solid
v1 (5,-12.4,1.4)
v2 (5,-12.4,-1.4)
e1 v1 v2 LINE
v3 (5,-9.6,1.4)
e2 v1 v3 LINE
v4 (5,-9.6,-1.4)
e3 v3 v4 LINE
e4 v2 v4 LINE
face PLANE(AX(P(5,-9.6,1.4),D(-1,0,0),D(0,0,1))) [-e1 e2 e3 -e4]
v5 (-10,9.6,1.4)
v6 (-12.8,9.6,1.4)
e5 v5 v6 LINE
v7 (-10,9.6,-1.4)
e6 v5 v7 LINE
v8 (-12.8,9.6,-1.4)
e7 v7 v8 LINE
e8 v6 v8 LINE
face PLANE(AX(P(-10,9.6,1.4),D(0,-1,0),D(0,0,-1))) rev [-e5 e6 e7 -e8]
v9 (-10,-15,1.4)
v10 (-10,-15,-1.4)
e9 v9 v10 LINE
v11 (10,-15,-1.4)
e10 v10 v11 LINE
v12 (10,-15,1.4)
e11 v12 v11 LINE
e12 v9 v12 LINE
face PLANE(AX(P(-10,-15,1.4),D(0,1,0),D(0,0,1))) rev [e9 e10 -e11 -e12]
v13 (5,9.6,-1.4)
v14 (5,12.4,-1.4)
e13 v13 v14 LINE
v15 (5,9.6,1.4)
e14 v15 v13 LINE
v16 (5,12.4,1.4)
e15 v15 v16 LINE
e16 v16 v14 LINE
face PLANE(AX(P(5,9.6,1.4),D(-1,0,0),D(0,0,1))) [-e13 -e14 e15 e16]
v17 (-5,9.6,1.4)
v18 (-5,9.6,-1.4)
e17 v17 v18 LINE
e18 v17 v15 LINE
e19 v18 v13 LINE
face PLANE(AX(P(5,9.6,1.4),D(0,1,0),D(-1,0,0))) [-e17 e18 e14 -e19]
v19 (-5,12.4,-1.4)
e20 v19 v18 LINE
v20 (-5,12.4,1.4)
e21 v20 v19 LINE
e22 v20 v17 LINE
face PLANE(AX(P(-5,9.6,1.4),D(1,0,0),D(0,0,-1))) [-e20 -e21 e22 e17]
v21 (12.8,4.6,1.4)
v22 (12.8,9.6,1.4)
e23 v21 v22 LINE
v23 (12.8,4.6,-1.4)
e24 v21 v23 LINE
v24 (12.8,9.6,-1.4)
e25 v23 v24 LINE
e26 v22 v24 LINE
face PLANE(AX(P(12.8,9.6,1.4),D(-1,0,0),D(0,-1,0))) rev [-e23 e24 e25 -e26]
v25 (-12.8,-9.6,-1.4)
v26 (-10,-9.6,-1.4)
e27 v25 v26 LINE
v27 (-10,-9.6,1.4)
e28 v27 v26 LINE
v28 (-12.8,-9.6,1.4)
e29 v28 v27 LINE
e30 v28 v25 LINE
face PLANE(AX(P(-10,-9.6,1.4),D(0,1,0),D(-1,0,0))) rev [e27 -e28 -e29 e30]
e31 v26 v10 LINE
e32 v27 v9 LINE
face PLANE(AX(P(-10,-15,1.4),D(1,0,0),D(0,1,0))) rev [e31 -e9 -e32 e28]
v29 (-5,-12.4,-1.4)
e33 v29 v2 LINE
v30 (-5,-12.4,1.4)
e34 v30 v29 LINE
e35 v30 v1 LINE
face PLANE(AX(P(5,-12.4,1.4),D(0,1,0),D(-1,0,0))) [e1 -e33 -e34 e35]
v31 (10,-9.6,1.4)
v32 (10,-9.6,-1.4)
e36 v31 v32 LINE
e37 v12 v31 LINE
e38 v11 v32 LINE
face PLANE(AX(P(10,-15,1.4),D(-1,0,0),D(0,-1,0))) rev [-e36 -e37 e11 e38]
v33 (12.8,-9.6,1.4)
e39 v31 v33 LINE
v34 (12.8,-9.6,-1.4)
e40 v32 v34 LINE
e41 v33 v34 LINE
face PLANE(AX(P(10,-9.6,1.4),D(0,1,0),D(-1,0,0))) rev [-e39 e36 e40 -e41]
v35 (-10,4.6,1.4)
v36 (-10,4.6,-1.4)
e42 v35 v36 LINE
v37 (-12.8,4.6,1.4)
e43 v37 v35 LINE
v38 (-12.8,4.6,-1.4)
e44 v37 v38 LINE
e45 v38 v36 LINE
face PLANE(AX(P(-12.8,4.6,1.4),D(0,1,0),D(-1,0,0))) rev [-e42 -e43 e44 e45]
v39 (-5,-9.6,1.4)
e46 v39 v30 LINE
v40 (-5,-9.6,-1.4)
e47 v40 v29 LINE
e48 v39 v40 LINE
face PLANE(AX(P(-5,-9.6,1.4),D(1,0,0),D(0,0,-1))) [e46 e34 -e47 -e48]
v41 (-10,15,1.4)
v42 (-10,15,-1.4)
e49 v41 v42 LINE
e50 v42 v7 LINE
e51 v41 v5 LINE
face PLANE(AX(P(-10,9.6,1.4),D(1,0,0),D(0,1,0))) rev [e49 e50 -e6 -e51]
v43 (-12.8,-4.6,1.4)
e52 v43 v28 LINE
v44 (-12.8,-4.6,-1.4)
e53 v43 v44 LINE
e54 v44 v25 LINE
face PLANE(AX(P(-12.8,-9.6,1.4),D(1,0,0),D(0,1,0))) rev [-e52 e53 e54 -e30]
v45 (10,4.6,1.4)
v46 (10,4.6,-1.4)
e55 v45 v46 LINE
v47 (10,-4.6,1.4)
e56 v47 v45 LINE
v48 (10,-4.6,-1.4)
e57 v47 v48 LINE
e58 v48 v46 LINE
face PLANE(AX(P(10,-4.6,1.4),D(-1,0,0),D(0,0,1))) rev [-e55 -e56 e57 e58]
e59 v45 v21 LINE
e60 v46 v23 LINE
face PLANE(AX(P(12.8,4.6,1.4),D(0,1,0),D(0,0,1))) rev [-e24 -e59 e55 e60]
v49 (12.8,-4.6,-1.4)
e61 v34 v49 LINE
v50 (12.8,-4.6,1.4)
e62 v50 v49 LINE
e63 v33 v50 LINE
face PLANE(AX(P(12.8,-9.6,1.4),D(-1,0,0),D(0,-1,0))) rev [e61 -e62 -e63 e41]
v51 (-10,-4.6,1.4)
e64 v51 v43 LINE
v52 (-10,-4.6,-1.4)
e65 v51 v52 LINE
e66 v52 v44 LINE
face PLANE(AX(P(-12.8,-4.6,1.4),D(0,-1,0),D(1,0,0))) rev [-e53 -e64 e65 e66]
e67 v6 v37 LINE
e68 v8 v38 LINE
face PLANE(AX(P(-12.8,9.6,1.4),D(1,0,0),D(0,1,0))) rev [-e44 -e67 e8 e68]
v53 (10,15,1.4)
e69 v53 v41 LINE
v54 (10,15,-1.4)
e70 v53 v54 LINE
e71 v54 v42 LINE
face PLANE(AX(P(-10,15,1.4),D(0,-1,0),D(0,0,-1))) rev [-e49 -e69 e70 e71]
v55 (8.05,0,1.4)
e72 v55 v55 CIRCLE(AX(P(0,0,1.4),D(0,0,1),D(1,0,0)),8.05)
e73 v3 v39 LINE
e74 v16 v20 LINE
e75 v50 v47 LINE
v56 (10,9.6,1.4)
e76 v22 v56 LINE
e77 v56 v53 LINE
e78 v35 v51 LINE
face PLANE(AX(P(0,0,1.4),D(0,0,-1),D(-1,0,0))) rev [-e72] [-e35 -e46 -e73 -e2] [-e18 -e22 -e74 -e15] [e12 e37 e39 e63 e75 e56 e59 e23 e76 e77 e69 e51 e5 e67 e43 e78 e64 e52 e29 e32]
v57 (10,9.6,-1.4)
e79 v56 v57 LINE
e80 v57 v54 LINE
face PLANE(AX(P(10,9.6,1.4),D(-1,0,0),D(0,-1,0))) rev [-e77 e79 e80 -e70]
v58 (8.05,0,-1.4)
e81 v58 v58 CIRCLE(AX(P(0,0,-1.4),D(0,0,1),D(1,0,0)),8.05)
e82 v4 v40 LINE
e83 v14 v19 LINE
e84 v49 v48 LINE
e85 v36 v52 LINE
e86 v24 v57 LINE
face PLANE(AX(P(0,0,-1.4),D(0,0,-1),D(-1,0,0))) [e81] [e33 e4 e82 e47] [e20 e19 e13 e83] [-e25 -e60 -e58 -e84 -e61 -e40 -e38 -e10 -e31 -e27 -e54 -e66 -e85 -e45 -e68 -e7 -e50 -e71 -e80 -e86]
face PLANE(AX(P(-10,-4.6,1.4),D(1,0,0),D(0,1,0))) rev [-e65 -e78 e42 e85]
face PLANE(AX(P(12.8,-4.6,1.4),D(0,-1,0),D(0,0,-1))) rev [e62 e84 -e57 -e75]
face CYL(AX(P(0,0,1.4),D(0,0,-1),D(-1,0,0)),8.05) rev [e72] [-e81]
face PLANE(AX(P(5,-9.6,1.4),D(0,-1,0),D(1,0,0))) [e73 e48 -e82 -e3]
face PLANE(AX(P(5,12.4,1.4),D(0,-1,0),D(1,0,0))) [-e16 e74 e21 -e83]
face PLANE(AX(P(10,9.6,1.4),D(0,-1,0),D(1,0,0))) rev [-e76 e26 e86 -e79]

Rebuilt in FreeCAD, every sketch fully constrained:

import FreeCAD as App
import Part
import Sketcher

doc = App.newDocument("Part")
body = doc.addObject("PartDesign::Body", "Body")

sketch1 = body.newObject("Sketcher::SketchObject", "Sketch")
sketch1.AttachmentSupport = (doc.getObject("XY_Plane"), [""])
sketch1.MapMode = "FlatFace"
sketch1.addGeometry([
    Part.LineSegment(App.Vector(-10, 9.6, 0), App.Vector(-12.8, 9.6, 0)),
    Part.LineSegment(App.Vector(-12.8, 9.6, 0), App.Vector(-12.8, 4.6, 0)),
    Part.LineSegment(App.Vector(-12.8, 4.6, 0), App.Vector(-10, 4.6, 0)),
    Part.LineSegment(App.Vector(-10, 4.6, 0), App.Vector(-10, -4.6, 0)),
    Part.LineSegment(App.Vector(-10, -4.6, 0), App.Vector(-12.8, -4.6, 0)),
    Part.LineSegment(App.Vector(-12.8, -4.6, 0), App.Vector(-12.8, -9.6, 0)),
    Part.LineSegment(App.Vector(-12.8, -9.6, 0), App.Vector(-10, -9.6, 0)),
    Part.LineSegment(App.Vector(-10, -9.6, 0), App.Vector(-10, -15, 0)),
    Part.LineSegment(App.Vector(-10, -15, 0), App.Vector(10, -15, 0)),
    Part.LineSegment(App.Vector(10, -15, 0), App.Vector(10, -9.6, 0)),
    Part.LineSegment(App.Vector(10, -9.6, 0), App.Vector(12.8, -9.6, 0)),
    Part.LineSegment(App.Vector(12.8, -9.6, 0), App.Vector(12.8, -4.6, 0)),
    Part.LineSegment(App.Vector(12.8, -4.6, 0), App.Vector(10, -4.6, 0)),
    Part.LineSegment(App.Vector(10, -4.6, 0), App.Vector(10, 4.6, 0)),
    Part.LineSegment(App.Vector(10, 4.6, 0), App.Vector(12.8, 4.6, 0)),
    Part.LineSegment(App.Vector(12.8, 4.6, 0), App.Vector(12.8, 9.6, 0)),
    Part.LineSegment(App.Vector(12.8, 9.6, 0), App.Vector(10, 9.6, 0)),
    Part.LineSegment(App.Vector(10, 9.6, 0), App.Vector(10, 15, 0)),
    Part.LineSegment(App.Vector(10, 15, 0), App.Vector(-10, 15, 0)),
    Part.LineSegment(App.Vector(-10, 15, 0), App.Vector(-10, 9.6, 0)),
    Part.LineSegment(App.Vector(5, -12.4, 0), App.Vector(-5, -12.4, 0)),
    Part.LineSegment(App.Vector(-5, -12.4, 0), App.Vector(-5, -9.6, 0)),
    Part.LineSegment(App.Vector(-5, -9.6, 0), App.Vector(5, -9.6, 0)),
    Part.LineSegment(App.Vector(5, -9.6, 0), App.Vector(5, -12.4, 0)),
    Part.Circle(App.Vector(0, 0, 0), App.Vector(0, 0, 1), 8.1),
    Part.LineSegment(App.Vector(5, 9.6, 0), App.Vector(-5, 9.6, 0)),
    Part.LineSegment(App.Vector(-5, 9.6, 0), App.Vector(-5, 12.4, 0)),
    Part.LineSegment(App.Vector(-5, 12.4, 0), App.Vector(5, 12.4, 0)),
    Part.LineSegment(App.Vector(5, 12.4, 0), App.Vector(5, 9.6, 0)),
], False)
sketch1.addConstraint([
    Sketcher.Constraint("Coincident", 0, 2, 1, 1),
    Sketcher.Constraint("Coincident", 1, 2, 2, 1),
    Sketcher.Constraint("Coincident", 2, 2, 3, 1),
    Sketcher.Constraint("Coincident", 3, 2, 4, 1),
    Sketcher.Constraint("Coincident", 4, 2, 5, 1),
    Sketcher.Constraint("Coincident", 5, 2, 6, 1),
    Sketcher.Constraint("Coincident", 6, 2, 7, 1),
    Sketcher.Constraint("Coincident", 7, 2, 8, 1),
    Sketcher.Constraint("Coincident", 8, 2, 9, 1),
    Sketcher.Constraint("Coincident", 9, 2, 10, 1),
    Sketcher.Constraint("Coincident", 10, 2, 11, 1),
    Sketcher.Constraint("Coincident", 11, 2, 12, 1),
    Sketcher.Constraint("Coincident", 12, 2, 13, 1),
    Sketcher.Constraint("Coincident", 13, 2, 14, 1),
    Sketcher.Constraint("Coincident", 14, 2, 15, 1),
    Sketcher.Constraint("Coincident", 15, 2, 16, 1),
    Sketcher.Constraint("Coincident", 16, 2, 17, 1),
    Sketcher.Constraint("Coincident", 17, 2, 18, 1),
    Sketcher.Constraint("Coincident", 18, 2, 19, 1),
    Sketcher.Constraint("Coincident", 19, 2, 0, 1),
    Sketcher.Constraint("Coincident", 20, 2, 21, 1),
    Sketcher.Constraint("Coincident", 21, 2, 22, 1),
    Sketcher.Constraint("Coincident", 22, 2, 23, 1),
    Sketcher.Constraint("Coincident", 23, 2, 20, 1),
    Sketcher.Constraint("Coincident", 25, 2, 26, 1),
    Sketcher.Constraint("Coincident", 26, 2, 27, 1),
    Sketcher.Constraint("Coincident", 27, 2, 28, 1),
    Sketcher.Constraint("Coincident", 28, 2, 25, 1),
    Sketcher.Constraint("Horizontal", 0),
    Sketcher.Constraint("Vertical", 1),
    Sketcher.Constraint("Horizontal", 2),
    Sketcher.Constraint("Vertical", 3),
    Sketcher.Constraint("Horizontal", 4),
    Sketcher.Constraint("Vertical", 5),
    Sketcher.Constraint("Horizontal", 6),
    Sketcher.Constraint("Vertical", 7),
    Sketcher.Constraint("Horizontal", 8),
    Sketcher.Constraint("Vertical", 9),
    Sketcher.Constraint("Horizontal", 10),
    Sketcher.Constraint("Vertical", 11),
    Sketcher.Constraint("Horizontal", 12),
    Sketcher.Constraint("Vertical", 13),
    Sketcher.Constraint("Horizontal", 14),
    Sketcher.Constraint("Vertical", 15),
    Sketcher.Constraint("Horizontal", 16),
    Sketcher.Constraint("Vertical", 17),
    Sketcher.Constraint("Horizontal", 18),
    Sketcher.Constraint("Vertical", 19),
    Sketcher.Constraint("Horizontal", 20),
    Sketcher.Constraint("Vertical", 21),
    Sketcher.Constraint("Horizontal", 22),
    Sketcher.Constraint("Vertical", 23),
    Sketcher.Constraint("Horizontal", 25),
    Sketcher.Constraint("Vertical", 26),
    Sketcher.Constraint("Horizontal", 27),
    Sketcher.Constraint("Vertical", 28),
    Sketcher.Constraint("Coincident", 24, 3, -1, 1),
    Sketcher.Constraint("Symmetric", 0, 2, 10, 2, -1, 1),
    Sketcher.Constraint("Symmetric", 2, 2, 12, 2, -1, 1),
    Sketcher.Constraint("Symmetric", 4, 2, 14, 2, -1, 1),
    Sketcher.Constraint("Symmetric", 6, 2, 16, 2, -1, 1),
    Sketcher.Constraint("Symmetric", 8, 2, 18, 2, -1, 1),
    Sketcher.Constraint("Symmetric", 22, 2, 25, 2, -1, 1),
    Sketcher.Constraint("Symmetric", 20, 2, 27, 2, -1, 1),
    Sketcher.Constraint("Symmetric", 6, 2, 9, 2, -2),
    Sketcher.Constraint("Symmetric", 4, 2, 11, 2, -2),
    Sketcher.Constraint("Horizontal", 10, 2, 21, 2),
    Sketcher.Constraint("Vertical", 3, 2, 6, 2),
    Sketcher.Constraint("Vertical", 21, 2, 25, 2),
    Sketcher.Constraint("Equal", 16, 21),
    Sketcher.Constraint("Diameter", 24, 16.1),
    Sketcher.Constraint("DistanceX", 8, 1, 8, 2, 20.0),
    Sketcher.Constraint("DistanceX", 20, 2, 20, 1, 10.0),
    Sketcher.Constraint("DistanceY", 1, 2, 1, 1, 5.0),
    Sketcher.Constraint("DistanceX", 0, 2, 0, 1, 2.8),
    Sketcher.Constraint("DistanceY", 3, 2, 3, 1, 9.2),
    Sketcher.Constraint("DistanceY", 7, 2, 7, 1, 5.4),
])
pad1 = body.newObject("PartDesign::Pad", "Pad")
pad1.Profile = sketch1
pad1.Length = 2.8
pad1.Midplane = True

doc.recompute()
